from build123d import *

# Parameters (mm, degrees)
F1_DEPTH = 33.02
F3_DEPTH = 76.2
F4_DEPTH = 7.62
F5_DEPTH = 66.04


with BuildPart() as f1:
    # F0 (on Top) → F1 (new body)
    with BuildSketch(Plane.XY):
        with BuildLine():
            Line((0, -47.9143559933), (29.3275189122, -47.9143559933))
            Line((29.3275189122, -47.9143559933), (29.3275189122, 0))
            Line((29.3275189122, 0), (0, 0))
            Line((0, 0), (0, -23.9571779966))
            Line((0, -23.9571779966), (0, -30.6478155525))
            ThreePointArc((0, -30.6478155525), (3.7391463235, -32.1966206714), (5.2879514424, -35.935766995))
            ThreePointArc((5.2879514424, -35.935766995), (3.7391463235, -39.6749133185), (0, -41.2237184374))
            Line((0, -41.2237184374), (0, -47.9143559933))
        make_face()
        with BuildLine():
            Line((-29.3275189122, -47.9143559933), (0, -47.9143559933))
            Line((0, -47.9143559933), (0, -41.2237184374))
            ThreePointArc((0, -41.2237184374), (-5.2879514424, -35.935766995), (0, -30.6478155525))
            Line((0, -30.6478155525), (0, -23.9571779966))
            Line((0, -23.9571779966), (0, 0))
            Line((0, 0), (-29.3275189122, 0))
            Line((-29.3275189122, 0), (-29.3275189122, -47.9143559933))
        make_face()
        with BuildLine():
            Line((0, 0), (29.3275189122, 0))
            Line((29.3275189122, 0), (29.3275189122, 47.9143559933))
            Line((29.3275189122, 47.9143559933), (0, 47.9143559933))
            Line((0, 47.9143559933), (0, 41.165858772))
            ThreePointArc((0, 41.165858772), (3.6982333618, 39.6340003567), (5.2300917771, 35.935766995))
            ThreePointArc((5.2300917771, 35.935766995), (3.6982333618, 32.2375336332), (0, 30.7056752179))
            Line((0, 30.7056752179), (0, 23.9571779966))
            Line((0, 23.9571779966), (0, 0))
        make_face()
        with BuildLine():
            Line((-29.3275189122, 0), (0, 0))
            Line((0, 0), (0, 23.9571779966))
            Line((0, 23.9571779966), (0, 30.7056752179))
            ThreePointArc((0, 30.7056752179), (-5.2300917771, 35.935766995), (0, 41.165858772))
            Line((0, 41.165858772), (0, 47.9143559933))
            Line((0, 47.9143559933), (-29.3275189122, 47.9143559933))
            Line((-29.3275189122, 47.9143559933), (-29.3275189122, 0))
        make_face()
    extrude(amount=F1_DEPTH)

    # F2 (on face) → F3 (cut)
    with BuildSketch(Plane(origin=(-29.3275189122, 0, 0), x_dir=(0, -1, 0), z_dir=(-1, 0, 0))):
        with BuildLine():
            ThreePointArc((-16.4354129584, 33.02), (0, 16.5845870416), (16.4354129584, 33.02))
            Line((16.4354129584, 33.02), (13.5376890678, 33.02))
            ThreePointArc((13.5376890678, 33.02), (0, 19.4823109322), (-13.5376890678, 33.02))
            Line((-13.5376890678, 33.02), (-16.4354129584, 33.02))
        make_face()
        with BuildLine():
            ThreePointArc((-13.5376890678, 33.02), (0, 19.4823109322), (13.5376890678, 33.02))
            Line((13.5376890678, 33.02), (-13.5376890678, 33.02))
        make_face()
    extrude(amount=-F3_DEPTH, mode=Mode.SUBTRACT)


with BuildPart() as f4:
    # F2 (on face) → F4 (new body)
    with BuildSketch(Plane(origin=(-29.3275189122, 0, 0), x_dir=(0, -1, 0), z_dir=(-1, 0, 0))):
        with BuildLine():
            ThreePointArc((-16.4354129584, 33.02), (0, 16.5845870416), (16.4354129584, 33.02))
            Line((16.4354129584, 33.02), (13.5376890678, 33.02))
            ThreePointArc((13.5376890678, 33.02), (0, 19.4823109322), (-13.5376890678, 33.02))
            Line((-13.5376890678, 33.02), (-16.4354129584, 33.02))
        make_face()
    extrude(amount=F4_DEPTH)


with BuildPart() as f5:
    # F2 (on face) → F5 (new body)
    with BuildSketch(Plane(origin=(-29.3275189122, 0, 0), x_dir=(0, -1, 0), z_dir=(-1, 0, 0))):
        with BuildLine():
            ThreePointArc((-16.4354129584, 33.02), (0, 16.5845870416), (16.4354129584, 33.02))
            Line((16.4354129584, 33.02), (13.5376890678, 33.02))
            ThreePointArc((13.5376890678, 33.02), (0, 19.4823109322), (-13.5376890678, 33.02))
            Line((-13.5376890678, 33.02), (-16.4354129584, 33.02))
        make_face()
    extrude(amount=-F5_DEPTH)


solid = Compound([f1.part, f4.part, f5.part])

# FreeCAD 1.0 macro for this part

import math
import FreeCAD as App
import Part
import Sketcher
Q = App.Units.Quantity

doc = App.newDocument("Part")
body = doc.addObject("PartDesign::Body", "Body")

# Sketch on XY plane
sketch1 = body.newObject("Sketcher::SketchObject", "Sketch")
sketch1.AttachmentSupport = (doc.getObject("XY_Plane"), [""])
sketch1.MapMode = "FlatFace"
sketch1.addGeometry([
    Part.LineSegment(App.Vector(29.327519, -47.914356, 0), App.Vector(29.327519, 47.914356, 0)),  # 0
    Part.LineSegment(App.Vector(29.327519, 47.914356, 0), App.Vector(-29.327519, 47.914356, 0)),  # 1
    Part.LineSegment(App.Vector(-29.327519, 47.914356, 0), App.Vector(-29.327519, -47.914356, 0)),  # 2
    Part.LineSegment(App.Vector(-29.327519, -47.914356, 0), App.Vector(29.327519, -47.914356, 0)),  # 3
    Part.Circle(App.Vector(0, 35.935767, 0), App.Vector(0, 0, 1), 5.230092),  # 4
    Part.ArcOfCircle(Part.Circle(App.Vector(0, -35.935767, 0), App.Vector(0, 0, 1), 5.287951), math.radians(0), math.radians(90)),  # 5
    Part.ArcOfCircle(Part.Circle(App.Vector(0, -35.935767, 0), App.Vector(0, 0, 1), 5.287951), math.radians(-90), math.radians(0)),  # 6
    Part.ArcOfCircle(Part.Circle(App.Vector(0, -35.935767, 0), App.Vector(0, 0, 1), 5.287951), math.radians(90), math.radians(270)),  # 7
], False)
sketch1.addConstraint([
    Sketcher.Constraint("Coincident", 0, 2, 1, 1),
    Sketcher.Constraint("Coincident", 1, 2, 2, 1),
    Sketcher.Constraint("Coincident", 2, 2, 3, 1),
    Sketcher.Constraint("Coincident", 3, 2, 0, 1),
    Sketcher.Constraint("Tangent", 5, 1, 6, 2),
    Sketcher.Constraint("Tangent", 6, 1, 7, 2),
    Sketcher.Constraint("Tangent", 7, 1, 5, 2),
    Sketcher.Constraint("Vertical", 0),
    Sketcher.Constraint("Horizontal", 1),
    Sketcher.Constraint("Vertical", 2),
    Sketcher.Constraint("Horizontal", 3),
    Sketcher.Constraint("Symmetric", 4, 3, 5, 3, -1, 1),
    Sketcher.Constraint("Symmetric", 0, 2, 2, 2, -1, 1),
    Sketcher.Constraint("PointOnObject", 4, 3, -2),
    Sketcher.Constraint("PointOnObject", 6, 1, -2),
    Sketcher.Constraint("PointOnObject", 7, 1, -2),
    Sketcher.Constraint("Horizontal", 7, 3, 5, 1),
    Sketcher.Constraint("Radius", 5, Q("5.287951 mm")),
    Sketcher.Constraint("Diameter", 4, Q("10.460184 mm")),
    Sketcher.Constraint("DistanceY", 0, 1, 0, 2, Q("95.828712 mm")),
    Sketcher.Constraint("DistanceX", 1, 2, 1, 1, Q("58.655038 mm")),
    Sketcher.Constraint("DistanceY", 6, 1, -1, 1, Q("41.223718 mm")),
])
pad1 = body.newObject("PartDesign::Pad", "Pad")
pad1.Profile = sketch1
pad1.Length = Q("1.3 in")

# Sketch on YZ plane
sketch2 = body.newObject("Sketcher::SketchObject", "Sketch001")
sketch2.AttachmentSupport = (doc.getObject("YZ_Plane"), [""])
sketch2.MapMode = "FlatFace"
sketch2.AttachmentOffset = App.Placement(App.Vector(0, 0, -29.327519), App.Rotation())
sketch2.addGeometry([
    Part.ArcOfCircle(Part.Circle(App.Vector(0, 33.02, 0), App.Vector(0, 0, 1), 16.435413), math.radians(180), math.radians(360)),
    Part.LineSegment(App.Vector(-16.435413, 33.02, 0), App.Vector(16.435413, 33.02, 0)),
], False)
sketch2.addConstraint([
    Sketcher.Constraint("Coincident", 0, 1, 1, 1),
    Sketcher.Constraint("Coincident", 1, 2, 0, 2),
    Sketcher.Constraint("Horizontal", 1),
    Sketcher.Constraint("PointOnObject", 0, 3, -2),
    Sketcher.Constraint("DistanceY", -1, 1, 0, 3, Q("1.3 in")),
    Sketcher.Constraint("DistanceY", -1, 1, 0, 1, Q("1.3 in")),
    Sketcher.Constraint("Radius", 0, Q("16.435413 mm")),
])
pocket1 = body.newObject("PartDesign::Pocket", "Pocket")
pocket1.Profile = sketch2
pocket1.Length = Q("3 in")
pocket1.Reversed = True
body2 = doc.addObject("PartDesign::Body", "Body001")

# Sketch on YZ plane
sketch3 = body2.newObject("Sketcher::SketchObject", "Sketch002")
sketch3.AttachmentSupport = (doc.getObject("YZ_Plane001"), [""])
sketch3.MapMode = "FlatFace"
sketch3.AttachmentOffset = App.Placement(App.Vector(0, 0, -29.327519), App.Rotation())
sketch3.addGeometry([
    Part.ArcOfCircle(Part.Circle(App.Vector(0, 33.02, 0), App.Vector(0, 0, 1), 16.435413), math.radians(180), math.radians(360)),
    Part.LineSegment(App.Vector(-16.435413, 33.02, 0), App.Vector(-13.537689, 33.02, 0)),
    Part.ArcOfCircle(Part.Circle(App.Vector(0, 33.02, 0), App.Vector(0, 0, 1), 13.537689), math.radians(180), math.radians(360)),
    Part.LineSegment(App.Vector(13.537689, 33.02, 0), App.Vector(16.435413, 33.02, 0)),
], False)
sketch3.addConstraint([
    Sketcher.Constraint("Coincident", 0, 1, 1, 1),
    Sketcher.Constraint("Coincident", 1, 2, 2, 1),
    Sketcher.Constraint("Coincident", 2, 2, 3, 1),
    Sketcher.Constraint("Coincident", 3, 2, 0, 2),
    Sketcher.Constraint("Horizontal", 1),
    Sketcher.Constraint("Horizontal", 3),
    Sketcher.Constraint("Coincident", 2, 3, 0, 3),
    Sketcher.Constraint("Symmetric", 1, 2, 2, 2, -2),
    Sketcher.Constraint("Horizontal", 2, 3, 0, 1),
    Sketcher.Constraint("DistanceY", -1, 1, 0, 3, Q("1.3 in")),
    Sketcher.Constraint("Radius", 2, Q("13.537689 mm")),
    Sketcher.Constraint("Radius", 0, Q("16.435413 mm")),
])
pad2 = body2.newObject("PartDesign::Pad", "Pad001")
pad2.Profile = sketch3
pad2.Length = Q("0.3 in")
pad2.Reversed = True
body3 = doc.addObject("PartDesign::Body", "Body002")

# Sketch on YZ plane
sketch4 = body3.newObject("Sketcher::SketchObject", "Sketch003")
sketch4.AttachmentSupport = (doc.getObject("YZ_Plane002"), [""])
sketch4.MapMode = "FlatFace"
sketch4.AttachmentOffset = App.Placement(App.Vector(0, 0, -29.327519), App.Rotation())
sketch4.addGeometry([
    Part.ArcOfCircle(Part.Circle(App.Vector(0, 33.02, 0), App.Vector(0, 0, 1), 16.435413), math.radians(180), math.radians(360)),
    Part.LineSegment(App.Vector(-16.435413, 33.02, 0), App.Vector(-13.537689, 33.02, 0)),
    Part.ArcOfCircle(Part.Circle(App.Vector(0, 33.02, 0), App.Vector(0, 0, 1), 13.537689), math.radians(180), math.radians(360)),
    Part.LineSegment(App.Vector(13.537689, 33.02, 0), App.Vector(16.435413, 33.02, 0)),
], False)
sketch4.addConstraint([
    Sketcher.Constraint("Coincident", 0, 1, 1, 1),
    Sketcher.Constraint("Coincident", 1, 2, 2, 1),
    Sketcher.Constraint("Coincident", 2, 2, 3, 1),
    Sketcher.Constraint("Coincident", 3, 2, 0, 2),
    Sketcher.Constraint("Horizontal", 1),
    Sketcher.Constraint("Horizontal", 3),
    Sketcher.Constraint("Coincident", 2, 3, 0, 3),
    Sketcher.Constraint("Symmetric", 1, 2, 2, 2, -2),
    Sketcher.Constraint("Horizontal", 2, 3, 0, 1),
    Sketcher.Constraint("DistanceY", -1, 1, 0, 3, Q("1.3 in")),
    Sketcher.Constraint("Radius", 2, Q("13.537689 mm")),
    Sketcher.Constraint("Radius", 0, Q("16.435413 mm")),
])
pad3 = body3.newObject("PartDesign::Pad", "Pad002")
pad3.Profile = sketch4
pad3.Length = Q("2.6 in")

doc.recompute()
